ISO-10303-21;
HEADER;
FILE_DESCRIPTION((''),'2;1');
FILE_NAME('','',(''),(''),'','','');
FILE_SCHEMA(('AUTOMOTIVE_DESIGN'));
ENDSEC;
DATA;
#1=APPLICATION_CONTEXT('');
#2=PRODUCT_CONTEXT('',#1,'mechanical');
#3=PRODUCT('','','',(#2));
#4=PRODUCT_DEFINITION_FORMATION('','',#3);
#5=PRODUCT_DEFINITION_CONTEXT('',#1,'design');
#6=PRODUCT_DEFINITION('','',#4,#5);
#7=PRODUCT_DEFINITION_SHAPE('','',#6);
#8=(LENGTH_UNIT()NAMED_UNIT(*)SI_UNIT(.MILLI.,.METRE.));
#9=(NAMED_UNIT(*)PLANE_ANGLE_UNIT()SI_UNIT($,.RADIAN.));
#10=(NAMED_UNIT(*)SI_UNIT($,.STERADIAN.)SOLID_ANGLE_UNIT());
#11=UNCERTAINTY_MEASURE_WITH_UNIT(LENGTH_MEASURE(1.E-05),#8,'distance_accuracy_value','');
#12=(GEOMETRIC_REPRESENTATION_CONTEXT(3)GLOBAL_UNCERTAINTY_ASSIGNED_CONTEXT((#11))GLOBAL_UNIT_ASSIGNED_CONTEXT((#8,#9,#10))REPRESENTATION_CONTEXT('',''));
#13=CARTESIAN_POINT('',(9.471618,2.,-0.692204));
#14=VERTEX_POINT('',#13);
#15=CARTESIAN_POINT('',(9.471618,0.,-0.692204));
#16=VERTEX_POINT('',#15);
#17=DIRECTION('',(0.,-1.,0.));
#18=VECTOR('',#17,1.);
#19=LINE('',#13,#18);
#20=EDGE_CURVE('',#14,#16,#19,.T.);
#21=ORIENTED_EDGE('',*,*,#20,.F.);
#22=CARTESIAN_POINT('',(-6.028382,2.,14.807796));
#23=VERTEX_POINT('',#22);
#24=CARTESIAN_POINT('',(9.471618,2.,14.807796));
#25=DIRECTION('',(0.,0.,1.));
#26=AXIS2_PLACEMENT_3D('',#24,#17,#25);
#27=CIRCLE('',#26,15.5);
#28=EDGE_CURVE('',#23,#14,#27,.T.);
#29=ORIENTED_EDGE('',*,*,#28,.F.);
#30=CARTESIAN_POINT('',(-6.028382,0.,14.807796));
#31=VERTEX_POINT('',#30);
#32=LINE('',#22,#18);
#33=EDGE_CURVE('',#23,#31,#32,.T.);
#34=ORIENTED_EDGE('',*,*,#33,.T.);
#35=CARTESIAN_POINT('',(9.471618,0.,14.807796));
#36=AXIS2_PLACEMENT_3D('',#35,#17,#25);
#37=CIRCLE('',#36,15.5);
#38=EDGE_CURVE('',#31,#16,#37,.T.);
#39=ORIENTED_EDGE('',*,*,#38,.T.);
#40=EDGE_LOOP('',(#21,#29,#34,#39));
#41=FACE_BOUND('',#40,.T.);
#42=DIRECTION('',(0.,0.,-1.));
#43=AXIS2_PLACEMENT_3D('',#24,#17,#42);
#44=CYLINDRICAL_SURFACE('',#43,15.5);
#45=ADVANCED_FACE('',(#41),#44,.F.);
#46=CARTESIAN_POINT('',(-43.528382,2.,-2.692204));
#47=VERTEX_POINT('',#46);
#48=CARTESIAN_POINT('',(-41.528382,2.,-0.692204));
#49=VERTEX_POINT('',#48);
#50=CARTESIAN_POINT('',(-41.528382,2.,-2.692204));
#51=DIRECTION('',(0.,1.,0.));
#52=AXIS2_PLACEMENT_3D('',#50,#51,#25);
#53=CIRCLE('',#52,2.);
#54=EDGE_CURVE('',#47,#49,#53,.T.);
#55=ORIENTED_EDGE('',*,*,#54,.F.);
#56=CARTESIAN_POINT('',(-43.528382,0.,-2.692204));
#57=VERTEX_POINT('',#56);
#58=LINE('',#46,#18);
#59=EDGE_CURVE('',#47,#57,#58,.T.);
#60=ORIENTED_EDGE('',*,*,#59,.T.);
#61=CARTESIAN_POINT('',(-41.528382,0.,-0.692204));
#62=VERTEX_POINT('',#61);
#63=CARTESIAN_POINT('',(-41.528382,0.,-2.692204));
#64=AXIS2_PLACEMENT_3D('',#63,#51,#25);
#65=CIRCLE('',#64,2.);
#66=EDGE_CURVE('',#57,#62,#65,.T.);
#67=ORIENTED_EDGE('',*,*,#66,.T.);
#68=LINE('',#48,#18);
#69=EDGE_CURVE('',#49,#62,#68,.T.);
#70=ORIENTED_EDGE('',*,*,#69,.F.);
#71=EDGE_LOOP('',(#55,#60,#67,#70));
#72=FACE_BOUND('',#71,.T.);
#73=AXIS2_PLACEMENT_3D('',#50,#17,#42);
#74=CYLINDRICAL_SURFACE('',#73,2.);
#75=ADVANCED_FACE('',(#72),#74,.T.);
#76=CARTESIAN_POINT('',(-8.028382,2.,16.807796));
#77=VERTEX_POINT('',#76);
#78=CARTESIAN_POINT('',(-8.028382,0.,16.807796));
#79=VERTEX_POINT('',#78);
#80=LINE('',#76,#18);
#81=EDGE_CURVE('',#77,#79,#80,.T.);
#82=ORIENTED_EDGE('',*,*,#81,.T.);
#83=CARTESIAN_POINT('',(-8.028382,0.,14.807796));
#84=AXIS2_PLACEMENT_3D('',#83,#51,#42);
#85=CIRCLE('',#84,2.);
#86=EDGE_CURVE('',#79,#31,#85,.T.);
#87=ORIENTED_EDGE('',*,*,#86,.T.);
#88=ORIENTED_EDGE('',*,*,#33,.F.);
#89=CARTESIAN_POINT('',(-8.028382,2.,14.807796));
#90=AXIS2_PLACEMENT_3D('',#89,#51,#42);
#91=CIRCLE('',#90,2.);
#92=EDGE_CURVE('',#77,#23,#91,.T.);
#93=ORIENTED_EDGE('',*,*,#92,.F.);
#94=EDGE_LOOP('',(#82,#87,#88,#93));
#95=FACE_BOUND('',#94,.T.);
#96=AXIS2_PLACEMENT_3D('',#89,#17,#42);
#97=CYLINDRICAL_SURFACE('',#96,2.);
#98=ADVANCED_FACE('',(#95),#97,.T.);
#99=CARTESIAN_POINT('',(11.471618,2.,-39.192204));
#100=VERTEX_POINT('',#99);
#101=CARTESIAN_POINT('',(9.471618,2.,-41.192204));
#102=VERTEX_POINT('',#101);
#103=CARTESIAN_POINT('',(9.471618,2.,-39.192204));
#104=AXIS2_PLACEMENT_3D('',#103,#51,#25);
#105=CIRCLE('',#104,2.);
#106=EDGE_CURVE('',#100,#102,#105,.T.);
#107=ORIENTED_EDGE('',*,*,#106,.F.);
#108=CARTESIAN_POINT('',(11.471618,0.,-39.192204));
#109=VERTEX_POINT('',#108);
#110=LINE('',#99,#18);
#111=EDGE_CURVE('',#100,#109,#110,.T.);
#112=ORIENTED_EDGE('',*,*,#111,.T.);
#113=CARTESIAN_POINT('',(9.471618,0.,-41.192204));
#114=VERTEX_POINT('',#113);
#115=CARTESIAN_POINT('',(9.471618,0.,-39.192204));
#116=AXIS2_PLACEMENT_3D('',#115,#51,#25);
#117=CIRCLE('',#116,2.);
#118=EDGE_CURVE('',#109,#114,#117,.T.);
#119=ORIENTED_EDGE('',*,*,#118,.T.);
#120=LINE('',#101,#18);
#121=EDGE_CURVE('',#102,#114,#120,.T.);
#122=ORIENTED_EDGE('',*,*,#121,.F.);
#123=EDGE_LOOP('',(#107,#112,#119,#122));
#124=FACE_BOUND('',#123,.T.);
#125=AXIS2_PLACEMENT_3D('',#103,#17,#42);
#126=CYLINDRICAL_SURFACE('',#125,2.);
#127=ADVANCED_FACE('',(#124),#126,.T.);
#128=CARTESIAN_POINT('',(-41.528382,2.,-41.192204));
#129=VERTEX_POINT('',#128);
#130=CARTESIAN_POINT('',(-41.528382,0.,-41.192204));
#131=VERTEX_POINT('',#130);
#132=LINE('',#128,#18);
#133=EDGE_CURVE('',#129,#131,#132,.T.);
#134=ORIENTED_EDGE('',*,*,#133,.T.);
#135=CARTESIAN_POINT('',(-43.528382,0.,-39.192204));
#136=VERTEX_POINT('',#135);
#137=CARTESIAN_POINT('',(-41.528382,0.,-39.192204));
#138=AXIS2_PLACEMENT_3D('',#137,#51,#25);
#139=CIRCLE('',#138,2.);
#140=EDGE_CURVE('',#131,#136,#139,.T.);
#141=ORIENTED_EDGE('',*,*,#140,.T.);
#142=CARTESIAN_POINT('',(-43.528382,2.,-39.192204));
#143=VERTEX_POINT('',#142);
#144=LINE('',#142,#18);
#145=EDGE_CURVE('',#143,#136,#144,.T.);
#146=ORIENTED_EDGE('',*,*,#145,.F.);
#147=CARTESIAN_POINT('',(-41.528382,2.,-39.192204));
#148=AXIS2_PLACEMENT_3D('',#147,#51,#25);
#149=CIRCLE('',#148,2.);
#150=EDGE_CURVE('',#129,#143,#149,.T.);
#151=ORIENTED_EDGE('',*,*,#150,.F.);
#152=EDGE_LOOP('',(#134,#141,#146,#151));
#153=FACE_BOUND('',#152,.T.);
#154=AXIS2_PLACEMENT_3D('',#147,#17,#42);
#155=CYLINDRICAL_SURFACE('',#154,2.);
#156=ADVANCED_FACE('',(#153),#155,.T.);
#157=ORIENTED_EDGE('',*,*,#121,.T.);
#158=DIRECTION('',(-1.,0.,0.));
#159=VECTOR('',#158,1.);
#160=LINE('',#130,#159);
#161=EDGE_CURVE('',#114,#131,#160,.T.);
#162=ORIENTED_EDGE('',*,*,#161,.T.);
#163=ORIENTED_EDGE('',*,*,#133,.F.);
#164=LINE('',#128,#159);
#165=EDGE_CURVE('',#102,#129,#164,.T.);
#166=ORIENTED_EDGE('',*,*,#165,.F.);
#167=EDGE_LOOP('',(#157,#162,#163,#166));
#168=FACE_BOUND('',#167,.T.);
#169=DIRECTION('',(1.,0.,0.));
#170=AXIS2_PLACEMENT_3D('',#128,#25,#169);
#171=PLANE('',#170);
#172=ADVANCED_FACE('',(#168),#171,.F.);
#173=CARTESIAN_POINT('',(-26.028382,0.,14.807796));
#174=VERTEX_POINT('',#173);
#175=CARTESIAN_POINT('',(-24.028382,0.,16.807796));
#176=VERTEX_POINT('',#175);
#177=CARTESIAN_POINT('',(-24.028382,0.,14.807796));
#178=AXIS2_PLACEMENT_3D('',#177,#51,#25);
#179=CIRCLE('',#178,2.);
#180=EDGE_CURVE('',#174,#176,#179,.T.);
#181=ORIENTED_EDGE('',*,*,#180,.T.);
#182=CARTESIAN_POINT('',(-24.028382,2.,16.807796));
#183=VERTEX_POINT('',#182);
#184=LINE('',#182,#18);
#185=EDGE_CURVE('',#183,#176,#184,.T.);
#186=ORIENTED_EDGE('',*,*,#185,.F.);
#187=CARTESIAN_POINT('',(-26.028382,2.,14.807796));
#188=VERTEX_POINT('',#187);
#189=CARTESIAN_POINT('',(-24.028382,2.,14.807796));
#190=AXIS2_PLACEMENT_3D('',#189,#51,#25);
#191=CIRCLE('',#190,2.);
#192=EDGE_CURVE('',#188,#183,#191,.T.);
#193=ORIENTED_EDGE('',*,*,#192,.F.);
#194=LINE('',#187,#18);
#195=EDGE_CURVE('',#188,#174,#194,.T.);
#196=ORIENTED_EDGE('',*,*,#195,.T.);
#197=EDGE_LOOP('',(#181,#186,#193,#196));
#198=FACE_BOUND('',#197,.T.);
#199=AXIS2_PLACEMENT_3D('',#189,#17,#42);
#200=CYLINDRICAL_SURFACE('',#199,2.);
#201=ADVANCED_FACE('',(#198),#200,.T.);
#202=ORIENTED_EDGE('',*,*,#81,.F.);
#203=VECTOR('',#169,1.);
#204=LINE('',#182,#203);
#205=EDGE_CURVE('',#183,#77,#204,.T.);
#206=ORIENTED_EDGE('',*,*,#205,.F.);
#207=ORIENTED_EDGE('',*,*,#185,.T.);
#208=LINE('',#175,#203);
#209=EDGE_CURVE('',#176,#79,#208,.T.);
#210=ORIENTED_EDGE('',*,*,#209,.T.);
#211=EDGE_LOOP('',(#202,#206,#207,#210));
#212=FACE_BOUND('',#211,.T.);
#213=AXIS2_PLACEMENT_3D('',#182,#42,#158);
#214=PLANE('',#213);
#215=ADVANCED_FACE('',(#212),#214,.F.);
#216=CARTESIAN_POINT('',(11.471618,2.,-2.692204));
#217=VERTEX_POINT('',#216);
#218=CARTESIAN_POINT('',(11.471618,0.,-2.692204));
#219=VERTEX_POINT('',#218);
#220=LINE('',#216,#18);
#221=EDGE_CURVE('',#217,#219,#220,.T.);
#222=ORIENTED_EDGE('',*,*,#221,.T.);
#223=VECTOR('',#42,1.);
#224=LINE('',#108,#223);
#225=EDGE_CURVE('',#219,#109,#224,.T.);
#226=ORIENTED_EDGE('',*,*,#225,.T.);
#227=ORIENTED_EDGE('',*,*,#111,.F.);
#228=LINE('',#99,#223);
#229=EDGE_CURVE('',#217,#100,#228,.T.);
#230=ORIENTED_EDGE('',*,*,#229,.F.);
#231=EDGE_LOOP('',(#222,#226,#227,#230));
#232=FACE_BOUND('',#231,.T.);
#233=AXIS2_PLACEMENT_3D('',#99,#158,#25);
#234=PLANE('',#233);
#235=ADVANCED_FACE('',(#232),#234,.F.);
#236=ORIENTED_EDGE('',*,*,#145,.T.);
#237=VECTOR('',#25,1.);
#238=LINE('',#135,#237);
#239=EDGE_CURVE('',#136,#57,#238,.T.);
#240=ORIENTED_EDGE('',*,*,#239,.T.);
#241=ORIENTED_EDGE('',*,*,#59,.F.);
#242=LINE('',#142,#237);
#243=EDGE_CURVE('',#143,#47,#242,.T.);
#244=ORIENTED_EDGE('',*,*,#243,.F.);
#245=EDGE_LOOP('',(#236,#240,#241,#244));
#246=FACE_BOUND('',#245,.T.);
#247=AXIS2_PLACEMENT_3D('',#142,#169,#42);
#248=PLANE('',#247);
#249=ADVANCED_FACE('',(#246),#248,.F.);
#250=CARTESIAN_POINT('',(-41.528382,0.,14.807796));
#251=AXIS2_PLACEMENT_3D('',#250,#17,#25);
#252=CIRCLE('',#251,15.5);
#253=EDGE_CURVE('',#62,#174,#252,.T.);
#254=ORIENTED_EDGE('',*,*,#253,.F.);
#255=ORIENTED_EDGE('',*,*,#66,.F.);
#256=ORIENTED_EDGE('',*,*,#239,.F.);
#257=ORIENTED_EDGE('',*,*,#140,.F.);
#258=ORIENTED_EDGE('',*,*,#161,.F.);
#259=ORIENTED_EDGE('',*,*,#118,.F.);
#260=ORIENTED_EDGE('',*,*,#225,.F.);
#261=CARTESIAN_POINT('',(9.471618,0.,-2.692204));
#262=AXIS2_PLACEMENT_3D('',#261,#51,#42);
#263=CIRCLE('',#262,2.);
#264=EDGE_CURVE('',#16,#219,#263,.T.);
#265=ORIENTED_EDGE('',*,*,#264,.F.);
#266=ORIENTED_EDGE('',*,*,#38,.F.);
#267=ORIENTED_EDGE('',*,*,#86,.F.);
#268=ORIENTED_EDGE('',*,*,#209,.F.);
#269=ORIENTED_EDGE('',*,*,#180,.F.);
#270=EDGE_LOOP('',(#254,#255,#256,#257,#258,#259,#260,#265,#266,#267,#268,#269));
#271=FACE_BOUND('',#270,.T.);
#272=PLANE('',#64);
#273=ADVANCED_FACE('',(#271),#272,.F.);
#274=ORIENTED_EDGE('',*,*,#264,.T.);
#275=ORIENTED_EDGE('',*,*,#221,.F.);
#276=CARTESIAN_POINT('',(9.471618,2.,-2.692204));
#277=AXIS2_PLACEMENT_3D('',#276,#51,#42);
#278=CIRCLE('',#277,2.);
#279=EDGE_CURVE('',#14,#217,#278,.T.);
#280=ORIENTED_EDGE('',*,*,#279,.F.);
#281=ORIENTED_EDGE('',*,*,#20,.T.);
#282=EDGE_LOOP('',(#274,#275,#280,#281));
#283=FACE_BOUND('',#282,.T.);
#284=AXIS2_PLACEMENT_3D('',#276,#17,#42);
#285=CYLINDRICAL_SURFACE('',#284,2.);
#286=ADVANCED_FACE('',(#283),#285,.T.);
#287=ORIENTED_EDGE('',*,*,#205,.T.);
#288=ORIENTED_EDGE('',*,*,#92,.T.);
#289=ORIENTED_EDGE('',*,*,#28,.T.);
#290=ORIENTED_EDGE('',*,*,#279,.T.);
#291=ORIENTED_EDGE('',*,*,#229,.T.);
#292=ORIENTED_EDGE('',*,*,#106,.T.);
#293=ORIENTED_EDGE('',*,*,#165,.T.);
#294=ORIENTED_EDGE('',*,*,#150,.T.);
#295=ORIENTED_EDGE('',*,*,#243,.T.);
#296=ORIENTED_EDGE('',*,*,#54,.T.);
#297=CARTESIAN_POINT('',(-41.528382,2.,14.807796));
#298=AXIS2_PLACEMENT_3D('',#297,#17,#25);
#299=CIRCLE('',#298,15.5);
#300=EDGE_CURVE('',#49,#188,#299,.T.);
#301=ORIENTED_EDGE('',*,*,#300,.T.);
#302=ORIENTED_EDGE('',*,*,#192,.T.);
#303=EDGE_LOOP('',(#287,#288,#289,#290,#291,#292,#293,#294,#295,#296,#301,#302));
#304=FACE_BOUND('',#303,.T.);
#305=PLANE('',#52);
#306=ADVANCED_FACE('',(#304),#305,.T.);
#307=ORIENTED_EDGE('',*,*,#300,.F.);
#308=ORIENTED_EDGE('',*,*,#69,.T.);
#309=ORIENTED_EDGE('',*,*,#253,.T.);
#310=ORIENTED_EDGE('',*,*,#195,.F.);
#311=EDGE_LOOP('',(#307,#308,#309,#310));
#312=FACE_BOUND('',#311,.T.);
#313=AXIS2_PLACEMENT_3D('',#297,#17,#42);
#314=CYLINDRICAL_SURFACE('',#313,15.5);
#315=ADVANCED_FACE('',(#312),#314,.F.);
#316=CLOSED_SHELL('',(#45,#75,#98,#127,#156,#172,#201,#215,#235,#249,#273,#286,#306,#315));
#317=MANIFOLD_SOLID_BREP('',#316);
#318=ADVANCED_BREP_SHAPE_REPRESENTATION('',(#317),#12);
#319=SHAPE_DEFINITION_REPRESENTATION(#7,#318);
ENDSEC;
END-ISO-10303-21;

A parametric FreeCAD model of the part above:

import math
import FreeCAD as App
import Part
import Sketcher

V = App.Vector

doc = App.newDocument("Part")
body = doc.addObject("PartDesign::Body", "Body")

sketch1 = body.newObject("Sketcher::SketchObject", "Sketch")
sketch1.AttachmentSupport = (doc.getObject("XZ_Plane"), [""])
sketch1.MapMode = "FlatFace"
sketch1.addGeometry([
    Part.LineSegment(V(9.5, -41.2, 0), V(-41.5, -41.2, 0)),
    Part.ArcOfCircle(Part.Circle(V(-41.5, -39.2, 0), V(0, 0, 1), 2), math.radians(-180), math.radians(-90)),
    Part.LineSegment(V(-43.5, -39.2, 0), V(-43.5, -2.7, 0)),
    Part.ArcOfCircle(Part.Circle(V(-41.5, -2.7, 0), V(0, 0, 1), 2), math.radians(90), math.radians(180)),
    Part.ArcOfCircle(Part.Circle(V(-41.5, 14.8, 0), V(0, 0, 1), 15.5), math.radians(-90), math.radians(0)),
    Part.ArcOfCircle(Part.Circle(V(-24, 14.8, 0), V(0, 0, 1), 2), math.radians(90), math.radians(180)),
    Part.LineSegment(V(-24, 16.8, 0), V(-8, 16.8, 0)),
    Part.ArcOfCircle(Part.Circle(V(-8, 14.8, 0), V(0, 0, 1), 2), math.radians(0), math.radians(90)),
    Part.ArcOfCircle(Part.Circle(V(9.5, 14.8, 0), V(0, 0, 1), 15.5), math.radians(-180), math.radians(-90)),
    Part.ArcOfCircle(Part.Circle(V(9.5, -2.7, 0), V(0, 0, 1), 2), math.radians(0), math.radians(90)),
    Part.LineSegment(V(11.5, -2.7, 0), V(11.5, -39.2, 0)),
    Part.ArcOfCircle(Part.Circle(V(9.5, -39.2, 0), V(0, 0, 1), 2), math.radians(-90), math.radians(0)),
], False)
sketch1.addConstraint([
    Sketcher.Constraint("Tangent", 0, 2, 1, 2),
    Sketcher.Constraint("Tangent", 1, 1, 2, 1),
    Sketcher.Constraint("Tangent", 2, 2, 3, 2),
    Sketcher.Constraint("Tangent", 3, 1, 4, 1),
    Sketcher.Constraint("Tangent", 4, 2, 5, 2),
    Sketcher.Constraint("Tangent", 5, 1, 6, 1),
    Sketcher.Constraint("Tangent", 6, 2, 7, 2),
    Sketcher.Constraint("Tangent", 7, 1, 8, 1),
    Sketcher.Constraint("Tangent", 8, 2, 9, 2),
    Sketcher.Constraint("Tangent", 9, 1, 10, 1),
    Sketcher.Constraint("Tangent", 10, 2, 11, 2),
    Sketcher.Constraint("Tangent", 11, 1, 0, 1),
    Sketcher.Constraint("Horizontal", 0),
    Sketcher.Constraint("Vertical", 2),
    Sketcher.Constraint("Horizontal", 6),
    Sketcher.Constraint("Vertical", 10),
    Sketcher.Constraint("Equal", 1, 3),
    Sketcher.Constraint("Equal", 3, 5),
    Sketcher.Constraint("Equal", 5, 7),
    Sketcher.Constraint("Equal", 4, 8),
    Sketcher.Constraint("Equal", 7, 9),
    Sketcher.Constraint("Equal", 9, 11),
    Sketcher.Constraint("Horizontal", 4, 3, 5, 3),
    Sketcher.Constraint("Horizontal", 7, 3, 8, 3),
    Sketcher.Constraint("Vertical", 3, 3, 4, 3),
    Sketcher.Constraint("Vertical", 8, 3, 9, 3),
    Sketcher.Constraint("Radius", 1, 2.0),
    Sketcher.Constraint("Radius", 4, 15.5),
    Sketcher.Constraint("DistanceX", 0, 2, 0, 1, 51.0),
    Sketcher.Constraint("DistanceY", 2, 1, 2, 2, 36.5),
    Sketcher.Constraint("DistanceX", 1, 3, -1, 1, 41.528382),
    Sketcher.Constraint("DistanceY", 1, 3, -1, 1, 39.192204),
])
pad1 = body.newObject("PartDesign::Pad", "Pad")
pad1.Profile = sketch1
pad1.Length = 2
pad1.Reversed = True

doc.recompute()
